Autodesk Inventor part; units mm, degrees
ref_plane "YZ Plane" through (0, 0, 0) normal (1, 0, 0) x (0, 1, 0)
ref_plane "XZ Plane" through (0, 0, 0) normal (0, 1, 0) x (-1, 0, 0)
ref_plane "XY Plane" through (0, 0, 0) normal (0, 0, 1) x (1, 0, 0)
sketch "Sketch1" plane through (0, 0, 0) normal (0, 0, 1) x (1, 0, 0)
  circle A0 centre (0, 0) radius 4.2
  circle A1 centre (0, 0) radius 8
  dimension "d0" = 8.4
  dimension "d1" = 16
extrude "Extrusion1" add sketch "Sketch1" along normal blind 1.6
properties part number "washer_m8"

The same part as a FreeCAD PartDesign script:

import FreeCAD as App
import Part
import Sketcher
from FreeCAD import Vector
Q = App.Units.Quantity

doc = App.newDocument("Part")
body = doc.addObject("PartDesign::Body", "Body")

# Sketch on XY plane
sketch1 = body.newObject("Sketcher::SketchObject", "Sketch")
sketch1.AttachmentSupport = (doc.getObject("XY_Plane"), [""])
sketch1.MapMode = "FlatFace"
sketch1.addGeometry([
    Part.Circle(Vector(0, 0, 0), Vector(0, 0, 1), 8),
    Part.Circle(Vector(0, 0, 0), Vector(0, 0, 1), 4.2),
], False)
sketch1.addConstraint([
    Sketcher.Constraint("Coincident", 0, 3, -1, 1),
    Sketcher.Constraint("Coincident", 1, 3, -1, 1),
    Sketcher.Constraint("Diameter", 0, Q("16 mm")),
    Sketcher.Constraint("Diameter", 1, Q("8.4 mm")),
])
pad1 = body.newObject("PartDesign::Pad", "Pad")
pad1.Profile = sketch1
pad1.Length = 1.6

doc.recompute()
